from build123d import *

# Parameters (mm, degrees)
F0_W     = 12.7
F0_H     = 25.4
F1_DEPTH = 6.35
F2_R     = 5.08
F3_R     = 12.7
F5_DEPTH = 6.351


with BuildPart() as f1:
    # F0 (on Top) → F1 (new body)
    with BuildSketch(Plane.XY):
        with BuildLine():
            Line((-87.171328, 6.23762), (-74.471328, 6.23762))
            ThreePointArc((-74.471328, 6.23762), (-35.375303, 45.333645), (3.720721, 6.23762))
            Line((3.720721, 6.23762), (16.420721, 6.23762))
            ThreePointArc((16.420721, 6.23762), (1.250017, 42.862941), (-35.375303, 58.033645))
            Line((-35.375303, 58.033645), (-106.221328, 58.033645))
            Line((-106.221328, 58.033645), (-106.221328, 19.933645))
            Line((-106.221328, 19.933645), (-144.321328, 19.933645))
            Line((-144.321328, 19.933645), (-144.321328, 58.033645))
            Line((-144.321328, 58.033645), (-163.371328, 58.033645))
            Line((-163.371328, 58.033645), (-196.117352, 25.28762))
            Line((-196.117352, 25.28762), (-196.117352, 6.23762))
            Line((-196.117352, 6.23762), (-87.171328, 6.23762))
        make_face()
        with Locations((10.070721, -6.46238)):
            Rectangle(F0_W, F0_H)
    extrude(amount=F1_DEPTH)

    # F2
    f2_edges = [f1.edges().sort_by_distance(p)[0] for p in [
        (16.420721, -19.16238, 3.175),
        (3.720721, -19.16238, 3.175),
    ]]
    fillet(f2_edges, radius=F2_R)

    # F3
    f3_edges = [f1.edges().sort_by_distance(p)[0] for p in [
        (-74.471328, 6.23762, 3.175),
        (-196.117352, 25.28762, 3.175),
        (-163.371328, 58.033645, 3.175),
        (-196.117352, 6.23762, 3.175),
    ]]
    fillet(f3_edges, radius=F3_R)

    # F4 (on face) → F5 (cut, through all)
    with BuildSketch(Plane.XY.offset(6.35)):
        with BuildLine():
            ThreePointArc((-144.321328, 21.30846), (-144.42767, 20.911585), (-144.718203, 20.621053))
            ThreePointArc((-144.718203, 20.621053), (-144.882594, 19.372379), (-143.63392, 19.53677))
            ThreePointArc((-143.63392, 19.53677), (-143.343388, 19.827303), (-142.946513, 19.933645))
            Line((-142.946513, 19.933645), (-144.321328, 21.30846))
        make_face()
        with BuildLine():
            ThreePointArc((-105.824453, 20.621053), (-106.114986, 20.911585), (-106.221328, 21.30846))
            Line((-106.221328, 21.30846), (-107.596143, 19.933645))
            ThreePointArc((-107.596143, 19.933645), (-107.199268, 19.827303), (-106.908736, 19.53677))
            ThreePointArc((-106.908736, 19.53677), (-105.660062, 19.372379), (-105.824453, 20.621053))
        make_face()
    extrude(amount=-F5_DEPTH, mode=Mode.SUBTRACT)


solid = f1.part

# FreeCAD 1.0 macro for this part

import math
import FreeCAD as App
import Part
import Sketcher
Q = App.Units.Quantity


def edges_at(feature, points):
    """Names of the edges that pass closest to the given points."""
    edges = feature.Shape.Edges
    near = lambda p: min(range(len(edges)), key=lambda i: edges[i].distToShape(Part.Vertex(*p))[0])
    return sorted({f"Edge{near(p) + 1}" for p in points})

doc = App.newDocument("Part")
body = doc.addObject("PartDesign::Body", "Body")

sketch1 = body.newObject("Sketcher::SketchObject", "Sketch")
sketch1.AttachmentSupport = (doc.getObject("XY_Plane"), [""])
sketch1.MapMode = "FlatFace"
sketch1.addGeometry(Part.ArcOfCircle(Part.Circle(App.Vector(-35, 6, 0), App.Vector(0, 0, 1), 39), math.radians(0), math.radians(180)), False)
sketch1.addGeometry(Part.LineSegment(App.Vector(4, 6, 0), App.Vector(4, -19, 0)), False)
sketch1.addGeometry(Part.LineSegment(App.Vector(4, -19, 0), App.Vector(16, -19, 0)), False)
sketch1.addGeometry(Part.LineSegment(App.Vector(16, -19, 0), App.Vector(16, 6, 0)), False)
sketch1.addGeometry(Part.ArcOfCircle(Part.Circle(App.Vector(-35, 6, 0), App.Vector(0, 0, 1), 52), math.radians(0), math.radians(90)), False)
sketch1.addGeometry(Part.LineSegment(App.Vector(-35, 58, 0), App.Vector(-106, 58, 0)), False)
sketch1.addGeometry(Part.LineSegment(App.Vector(-106, 58, 0), App.Vector(-106, 20, 0)), False)
sketch1.addGeometry(Part.LineSegment(App.Vector(-106, 20, 0), App.Vector(-144, 20, 0)), False)
sketch1.addGeometry(Part.LineSegment(App.Vector(-144, 20, 0), App.Vector(-144, 58, 0)), False)
sketch1.addGeometry(Part.LineSegment(App.Vector(-144, 58, 0), App.Vector(-163, 58, 0)), False)
sketch1.addGeometry(Part.LineSegment(App.Vector(-163, 58, 0), App.Vector(-196, 25, 0)), False)
sketch1.addGeometry(Part.LineSegment(App.Vector(-196, 25, 0), App.Vector(-196, 6, 0)), False)
sketch1.addGeometry(Part.LineSegment(App.Vector(-196, 6, 0), App.Vector(-74, 6, 0)), False)
sketch1.addConstraint(Sketcher.Constraint("Tangent", 0, 1, 1, 1))
sketch1.addConstraint(Sketcher.Constraint("Coincident", 1, 2, 2, 1))
sketch1.addConstraint(Sketcher.Constraint("Coincident", 2, 2, 3, 1))
sketch1.addConstraint(Sketcher.Constraint("Tangent", 3, 2, 4, 1))
sketch1.addConstraint(Sketcher.Constraint("Tangent", 4, 2, 5, 1))
sketch1.addConstraint(Sketcher.Constraint("Coincident", 5, 2, 6, 1))
sketch1.addConstraint(Sketcher.Constraint("Coincident", 6, 2, 7, 1))
sketch1.addConstraint(Sketcher.Constraint("Coincident", 7, 2, 8, 1))
sketch1.addConstraint(Sketcher.Constraint("Coincident", 8, 2, 9, 1))
sketch1.addConstraint(Sketcher.Constraint("Coincident", 9, 2, 10, 1))
sketch1.addConstraint(Sketcher.Constraint("Coincident", 10, 2, 11, 1))
sketch1.addConstraint(Sketcher.Constraint("Coincident", 11, 2, 12, 1))
sketch1.addConstraint(Sketcher.Constraint("Coincident", 12, 2, 0, 2))
sketch1.addConstraint(Sketcher.Constraint("Vertical", 1))
sketch1.addConstraint(Sketcher.Constraint("Horizontal", 2))
sketch1.addConstraint(Sketcher.Constraint("Vertical", 3))
sketch1.addConstraint(Sketcher.Constraint("Horizontal", 5))
sketch1.addConstraint(Sketcher.Constraint("Vertical", 6))
sketch1.addConstraint(Sketcher.Constraint("Horizontal", 7))
sketch1.addConstraint(Sketcher.Constraint("Vertical", 8))
sketch1.addConstraint(Sketcher.Constraint("Horizontal", 9))
sketch1.addConstraint(Sketcher.Constraint("Vertical", 11))
sketch1.addConstraint(Sketcher.Constraint("Horizontal", 12))
sketch1.addConstraint(Sketcher.Constraint("Coincident", 4, 3, 0, 3))
sketch1.addConstraint(Sketcher.Constraint("Horizontal", 5, 2, 8, 2))
sketch1.addConstraint(Sketcher.Constraint("Horizontal", 3, 2, 11, 2))
sketch1.addConstraint(Sketcher.Constraint("Equal", 7, 6))
sketch1.addConstraint(Sketcher.Constraint("Equal", 9, 11))
sketch1.addConstraint(Sketcher.Constraint("DistanceY", 1, 2, 1, 1, Q("1 in")))
sketch1.addConstraint(Sketcher.Constraint("DistanceX", 2, 1, 2, 2, Q("0.5 in")))
sketch1.addConstraint(Sketcher.Constraint("DistanceX", 7, 2, 7, 1, Q("1.5 in")))
sketch1.addConstraint(Sketcher.Constraint("Angle", 10, Q("-134.999999 deg")))
sketch1.addConstraint(Sketcher.Constraint("DistanceX", 9, 2, 9, 1, Q("0.75 in")))
sketch1.addConstraint(Sketcher.Constraint("DistanceX", 6, 2, 12, 2, Q("1.25 in")))
sketch1.addConstraint(Sketcher.Constraint("Radius", 0, Q("39.096024 mm")))
sketch1.addConstraint(Sketcher.Constraint("DistanceY", -1, 1, 0, 3, Q("6.237621 mm")))
sketch1.addConstraint(Sketcher.Constraint("DistanceX", -1, 1, 0, 1, Q("3.720721 mm")))
pad1 = body.newObject("PartDesign::Pad", "Pad")
pad1.Profile = sketch1
pad1.Length = Q("0.25 in")
doc.recompute()

fillet = body.newObject("PartDesign::Fillet", "Fillet")
fillet.Base = (pad1, edges_at(pad1, [(16.421, -19.162, 3.175), (3.721, -19.162, 3.175)]))
fillet.Radius = Q("0.2 in")
doc.recompute()

fillet2 = body.newObject("PartDesign::Fillet", "Fillet001")
fillet2.Base = (fillet, edges_at(fillet, [
    (-74.471, 6.238, 3.175),
    (-196.117, 25.288, 3.175),
    (-163.371, 58.034, 3.175),
    (-196.117, 6.238, 3.175),
]))
fillet2.Radius = Q("0.5 in")

sketch2 = body.newObject("Sketcher::SketchObject", "Sketch001")
sketch2.AttachmentSupport = (doc.getObject("XY_Plane"), [""])
sketch2.MapMode = "FlatFace"
sketch2.AttachmentOffset = App.Placement(App.Vector(0, 0, 0.25 * 25.4), App.Rotation())
sketch2.addGeometry(Part.ArcOfCircle(Part.Circle(App.Vector(-145.1, 21.3, 0), App.Vector(0, 0, 1), 0.8), math.radians(-60), math.radians(0)), False)
sketch2.addGeometry(Part.ArcOfCircle(Part.Circle(App.Vector(-144.3, 19.9, 0), App.Vector(0, 0, 1), 0.8), math.radians(120), math.radians(330)), False)
sketch2.addGeometry(Part.ArcOfCircle(Part.Circle(App.Vector(-142.9, 19.1, 0), App.Vector(0, 0, 1), 0.8), math.radians(90), math.radians(150)), False)
sketch2.addGeometry(Part.LineSegment(App.Vector(-142.9, 19.9, 0), App.Vector(-144.3, 21.3, 0)), False)
sketch2.addGeometry(Part.ArcOfCircle(Part.Circle(App.Vector(-105.4, 21.3, 0), App.Vector(0, 0, 1), 0.8), math.radians(180), math.radians(240)), False)
sketch2.addGeometry(Part.LineSegment(App.Vector(-106.2, 21.3, 0), App.Vector(-107.6, 19.9, 0)), False)
sketch2.addGeometry(Part.ArcOfCircle(Part.Circle(App.Vector(-107.6, 19.1, 0), App.Vector(0, 0, 1), 0.8), math.radians(30), math.radians(90)), False)
sketch2.addGeometry(Part.ArcOfCircle(Part.Circle(App.Vector(-106.2, 19.9, 0), App.Vector(0, 0, 1), 0.8), math.radians(-150), math.radians(60)), False)
sketch2.addConstraint(Sketcher.Constraint("Coincident", 0, 1, 1, 1))
sketch2.addConstraint(Sketcher.Constraint("Coincident", 1, 2, 2, 2))
sketch2.addConstraint(Sketcher.Constraint("Coincident", 2, 1, 3, 1))
sketch2.addConstraint(Sketcher.Constraint("Coincident", 3, 2, 0, 2))
sketch2.addConstraint(Sketcher.Constraint("Coincident", 4, 1, 5, 1))
sketch2.addConstraint(Sketcher.Constraint("Coincident", 5, 2, 6, 2))
sketch2.addConstraint(Sketcher.Constraint("Coincident", 6, 1, 7, 1))
sketch2.addConstraint(Sketcher.Constraint("Coincident", 7, 2, 4, 2))
sketch2.addConstraint(Sketcher.Constraint("Equal", 0, 2))
sketch2.addConstraint(Sketcher.Constraint("Equal", 2, 4))
sketch2.addConstraint(Sketcher.Constraint("Equal", 4, 6))
sketch2.addConstraint(Sketcher.Constraint("Equal", 1, 7))
sketch2.addConstraint(Sketcher.Constraint("Perpendicular", 3, 5))
sketch2.addConstraint(Sketcher.Constraint("Horizontal", 0, 3, 4, 3))
sketch2.addConstraint(Sketcher.Constraint("Horizontal", 2, 3, 6, 3))
sketch2.addConstraint(Sketcher.Constraint("Horizontal", 1, 3, 7, 3))
sketch2.addConstraint(Sketcher.Constraint("Horizontal", 7, 3, 2, 1))
sketch2.addConstraint(Sketcher.Constraint("Horizontal", 4, 3, 3, 2))
sketch2.addConstraint(Sketcher.Constraint("Horizontal", 3, 2, 4, 1))
sketch2.addConstraint(Sketcher.Constraint("Horizontal", 1, 2, 6, 1))
sketch2.addConstraint(Sketcher.Constraint("Horizontal", 0, 1, 7, 2))
sketch2.addConstraint(Sketcher.Constraint("Vertical", 1, 3, 3, 2))
sketch2.addConstraint(Sketcher.Constraint("Vertical", 6, 3, 5, 2))
sketch2.addConstraint(Sketcher.Constraint("Radius", 1, Q("0.03125 in")))
sketch2.addConstraint(Sketcher.Constraint("DistanceX", 1, 3, 7, 3, Q("1.5 in")))
sketch2.addConstraint(Sketcher.Constraint("DistanceX", 0, 3, 1, 3, Q("0.0312498 in")))
sketch2.addConstraint(Sketcher.Constraint("DistanceX", 0, 1, 1, 3, Q("0.015625 in")))
sketch2.addConstraint(Sketcher.Constraint("DistanceY", 1, 2, 1, 3, Q("0.015625 in")))
sketch2.addConstraint(Sketcher.Constraint("DistanceY", -1, 1, 2, 3, Q("19.139899 mm")))
sketch2.addConstraint(Sketcher.Constraint("DistanceX", 6, 3, -1, 1, Q("107.596141 mm")))
pocket1 = body.newObject("PartDesign::Pocket", "Pocket")
pocket1.Profile = sketch2
pocket1.Type = "ThroughAll"

doc.recompute()
